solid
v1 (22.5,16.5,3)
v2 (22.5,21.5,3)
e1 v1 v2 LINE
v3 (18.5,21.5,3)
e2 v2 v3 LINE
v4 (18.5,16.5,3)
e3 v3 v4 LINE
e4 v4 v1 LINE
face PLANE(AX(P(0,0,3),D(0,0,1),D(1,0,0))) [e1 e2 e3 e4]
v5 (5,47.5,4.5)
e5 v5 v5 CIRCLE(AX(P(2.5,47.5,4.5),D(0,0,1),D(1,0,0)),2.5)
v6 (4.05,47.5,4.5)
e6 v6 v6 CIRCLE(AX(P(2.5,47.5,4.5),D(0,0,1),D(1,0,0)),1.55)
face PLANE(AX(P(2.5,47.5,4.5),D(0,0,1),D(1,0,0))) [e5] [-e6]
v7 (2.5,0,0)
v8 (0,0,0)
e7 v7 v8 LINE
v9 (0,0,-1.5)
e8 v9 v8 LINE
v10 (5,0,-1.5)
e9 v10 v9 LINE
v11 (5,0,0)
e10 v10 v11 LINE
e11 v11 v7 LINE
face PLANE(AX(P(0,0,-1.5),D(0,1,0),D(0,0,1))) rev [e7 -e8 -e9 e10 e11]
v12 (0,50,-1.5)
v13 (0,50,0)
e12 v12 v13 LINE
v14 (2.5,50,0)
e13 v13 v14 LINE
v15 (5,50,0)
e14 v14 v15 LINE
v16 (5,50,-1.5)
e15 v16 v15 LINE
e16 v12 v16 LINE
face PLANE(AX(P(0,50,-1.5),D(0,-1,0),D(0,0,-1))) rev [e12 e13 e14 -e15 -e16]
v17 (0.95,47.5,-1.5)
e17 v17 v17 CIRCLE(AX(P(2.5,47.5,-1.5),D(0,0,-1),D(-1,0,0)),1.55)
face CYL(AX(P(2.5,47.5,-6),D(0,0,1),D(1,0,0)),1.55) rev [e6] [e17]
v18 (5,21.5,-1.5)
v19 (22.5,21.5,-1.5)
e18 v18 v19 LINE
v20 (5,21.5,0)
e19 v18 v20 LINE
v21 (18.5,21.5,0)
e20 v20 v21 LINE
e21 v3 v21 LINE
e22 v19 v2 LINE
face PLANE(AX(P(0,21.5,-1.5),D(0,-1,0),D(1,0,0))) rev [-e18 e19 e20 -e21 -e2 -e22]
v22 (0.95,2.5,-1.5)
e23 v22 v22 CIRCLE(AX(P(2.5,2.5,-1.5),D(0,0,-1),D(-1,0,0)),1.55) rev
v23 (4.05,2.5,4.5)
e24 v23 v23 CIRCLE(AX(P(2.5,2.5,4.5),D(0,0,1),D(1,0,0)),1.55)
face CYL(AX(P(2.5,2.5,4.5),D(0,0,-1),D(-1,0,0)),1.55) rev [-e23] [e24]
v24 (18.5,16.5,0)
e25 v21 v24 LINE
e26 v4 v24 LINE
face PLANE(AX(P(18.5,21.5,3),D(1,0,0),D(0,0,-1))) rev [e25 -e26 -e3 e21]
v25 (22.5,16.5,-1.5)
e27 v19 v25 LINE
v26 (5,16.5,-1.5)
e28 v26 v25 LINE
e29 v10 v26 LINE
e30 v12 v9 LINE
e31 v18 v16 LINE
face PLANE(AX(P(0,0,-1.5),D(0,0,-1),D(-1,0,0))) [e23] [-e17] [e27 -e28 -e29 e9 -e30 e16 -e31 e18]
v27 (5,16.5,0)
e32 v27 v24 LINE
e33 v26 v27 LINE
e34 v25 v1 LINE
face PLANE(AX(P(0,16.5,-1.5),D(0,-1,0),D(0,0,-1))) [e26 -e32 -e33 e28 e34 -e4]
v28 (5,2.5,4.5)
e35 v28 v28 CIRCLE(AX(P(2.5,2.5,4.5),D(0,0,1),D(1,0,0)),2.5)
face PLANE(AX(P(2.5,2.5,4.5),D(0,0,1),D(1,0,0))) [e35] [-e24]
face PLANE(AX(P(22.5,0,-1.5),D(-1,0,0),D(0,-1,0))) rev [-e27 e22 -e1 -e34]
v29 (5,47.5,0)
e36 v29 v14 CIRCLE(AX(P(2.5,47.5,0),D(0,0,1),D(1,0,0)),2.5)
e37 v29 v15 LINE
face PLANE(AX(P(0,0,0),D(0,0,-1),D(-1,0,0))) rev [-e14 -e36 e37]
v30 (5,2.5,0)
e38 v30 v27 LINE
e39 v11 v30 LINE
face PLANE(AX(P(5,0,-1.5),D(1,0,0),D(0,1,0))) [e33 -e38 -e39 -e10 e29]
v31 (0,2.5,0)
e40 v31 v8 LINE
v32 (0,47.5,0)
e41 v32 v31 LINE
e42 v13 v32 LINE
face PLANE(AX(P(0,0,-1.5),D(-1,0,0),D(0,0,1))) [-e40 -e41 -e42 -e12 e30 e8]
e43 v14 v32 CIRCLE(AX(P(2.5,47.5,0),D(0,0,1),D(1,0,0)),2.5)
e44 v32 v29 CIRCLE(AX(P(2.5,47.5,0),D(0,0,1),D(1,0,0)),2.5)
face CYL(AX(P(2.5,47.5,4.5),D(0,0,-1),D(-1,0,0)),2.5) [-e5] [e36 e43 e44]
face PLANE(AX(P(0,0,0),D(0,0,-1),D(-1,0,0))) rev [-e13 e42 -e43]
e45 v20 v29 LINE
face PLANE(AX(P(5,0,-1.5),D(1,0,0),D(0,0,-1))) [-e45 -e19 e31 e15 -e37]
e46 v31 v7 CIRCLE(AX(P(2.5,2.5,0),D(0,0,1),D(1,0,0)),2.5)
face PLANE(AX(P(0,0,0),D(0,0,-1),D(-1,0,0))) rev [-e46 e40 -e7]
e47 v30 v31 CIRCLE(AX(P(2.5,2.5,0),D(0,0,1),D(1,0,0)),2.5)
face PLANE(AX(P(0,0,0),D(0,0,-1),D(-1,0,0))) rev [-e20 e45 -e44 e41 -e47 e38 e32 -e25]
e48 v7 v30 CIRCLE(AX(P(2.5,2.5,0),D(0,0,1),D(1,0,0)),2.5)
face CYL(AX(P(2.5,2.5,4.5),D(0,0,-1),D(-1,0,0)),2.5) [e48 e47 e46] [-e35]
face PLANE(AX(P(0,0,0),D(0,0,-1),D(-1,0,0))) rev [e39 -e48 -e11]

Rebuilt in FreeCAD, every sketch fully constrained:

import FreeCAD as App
import Part
import Sketcher

V = App.Vector
Q = App.Units.Quantity

doc = App.newDocument("Part")
params = doc.addObject("Spreadsheet::Sheet", "Params")
for row, (alias, value) in enumerate([
    ("sketch1_diameter", "5 mm"),
    ("sketch1_diameter2", "3.1 mm"),
    ("pad1_length", "4.5 mm"),
    ("sketch2_diameter", "3.1 mm"),
    ("sketch2_width", "5 mm"),
    ("sketch2_height", "50 mm"),
    ("sketch2_width2", "17.5 mm"),
    ("sketch2_height2", "28.5 mm"),
    ("pad2_length", "1.5 mm"),
    ("sketch3_width", "4 mm"),
    ("sketch3_height", "5 mm"),
    ("pad3_length", "3 mm"),
    ("sketch4_diameter", "5 mm"),
    ("pad4_length", "4.5 mm"),
    ("sketch5_diameter", "3.1 mm"),
    ("pocket1_length", "10.5 mm"),
], start=1):
    params.set(f"A{row}", alias)
    params.set(f"B{row}", "=" + value)
    params.setAlias(f"B{row}", alias)

body = doc.addObject("PartDesign::Body", "Body")

sketch1 = doc.addObject("Sketcher::SketchObject", "Sketch")
body.addObject(sketch1)
sketch1.AttachmentSupport = (doc.XY_Plane, [""])
sketch1.MapMode = "FlatFace"
sketch1.addGeometry([
    Part.Circle(V(2.5, 2.5, 0), V(0, 0, 1), 2.5),
    Part.Circle(V(2.5, 2.5, 0), V(0, 0, 1), 1.55),
], False)
sketch1.addConstraint([
    Sketcher.Constraint("Coincident", 1, 3, 0, 3),
    Sketcher.Constraint("Diameter", 0, Q("5 mm")),
    Sketcher.Constraint("Diameter", 1, Q("3.1 mm")),
    Sketcher.Constraint("DistanceX", -1, 1, 0, 3, Q("2.5 mm")),
    Sketcher.Constraint("DistanceY", -1, 1, 0, 3, Q("2.5 mm")),
])
sketch1.setExpression("Constraints[1]", "Params.sketch1_diameter")
sketch1.setExpression("Constraints[2]", "Params.sketch1_diameter2")
pad1 = doc.addObject("PartDesign::Pad", "Pad")
body.addObject(pad1)
pad1.Profile = sketch1
pad1.setExpression("Length", "Params.pad1_length")

sketch2 = doc.addObject("Sketcher::SketchObject", "Sketch001")
body.addObject(sketch2)
sketch2.AttachmentSupport = (doc.XY_Plane, [""])
sketch2.MapMode = "FlatFace"
sketch2.AttachmentOffset = App.Placement(V(0, 0, -1.5), App.Rotation())
sketch2.addGeometry([
    Part.LineSegment(V(5, 0, 0), V(0, 0, 0)),
    Part.LineSegment(V(0, 0, 0), V(0, 50, 0)),
    Part.LineSegment(V(0, 50, 0), V(5, 50, 0)),
    Part.LineSegment(V(5, 50, 0), V(5, 21.5, 0)),
    Part.LineSegment(V(5, 21.5, 0), V(22.5, 21.5, 0)),
    Part.LineSegment(V(22.5, 21.5, 0), V(22.5, 16.5, 0)),
    Part.LineSegment(V(22.5, 16.5, 0), V(5, 16.5, 0)),
    Part.LineSegment(V(5, 16.5, 0), V(5, 0, 0)),
    Part.Circle(V(2.5, 2.5, 0), V(0, 0, 1), 1.55),
], False)
sketch2.addConstraint([
    Sketcher.Constraint("Coincident", 0, 2, 1, 1),
    Sketcher.Constraint("Coincident", 1, 2, 2, 1),
    Sketcher.Constraint("Coincident", 2, 2, 3, 1),
    Sketcher.Constraint("Coincident", 3, 2, 4, 1),
    Sketcher.Constraint("Coincident", 4, 2, 5, 1),
    Sketcher.Constraint("Coincident", 5, 2, 6, 1),
    Sketcher.Constraint("Coincident", 6, 2, 7, 1),
    Sketcher.Constraint("Coincident", 7, 2, 0, 1),
    Sketcher.Constraint("Horizontal", 0),
    Sketcher.Constraint("Vertical", 1),
    Sketcher.Constraint("Horizontal", 2),
    Sketcher.Constraint("Vertical", 3),
    Sketcher.Constraint("Horizontal", 4),
    Sketcher.Constraint("Vertical", 5),
    Sketcher.Constraint("Horizontal", 6),
    Sketcher.Constraint("Vertical", 7),
    Sketcher.Constraint("Coincident", 0, 2, -1, 1),
    Sketcher.Constraint("Vertical", 3, 2, 6, 2),
    Sketcher.Constraint("Equal", 2, 5),
    Sketcher.Constraint("Diameter", 8, Q("3.1 mm")),
    Sketcher.Constraint("DistanceX", 0, 2, 0, 1, Q("5 mm")),
    Sketcher.Constraint("DistanceY", 1, 1, 1, 2, Q("50 mm")),
    Sketcher.Constraint("DistanceX", 4, 1, 4, 2, Q("17.5 mm")),
    Sketcher.Constraint("DistanceY", 3, 2, 3, 1, Q("28.5 mm")),
    Sketcher.Constraint("DistanceY", 8, 3, 3, 2, Q("19 mm")),
    Sketcher.Constraint("DistanceX", 8, 3, 4, 2, Q("20 mm")),
])
sketch2.setExpression("Constraints[19]", "Params.sketch2_diameter")
sketch2.setExpression("Constraints[20]", "Params.sketch2_width")
sketch2.setExpression("Constraints[21]", "Params.sketch2_height")
sketch2.setExpression("Constraints[22]", "Params.sketch2_width2")
sketch2.setExpression("Constraints[23]", "Params.sketch2_height2")
pad2 = doc.addObject("PartDesign::Pad", "Pad001")
body.addObject(pad2)
pad2.Profile = sketch2
pad2.setExpression("Length", "Params.pad2_length")

sketch3 = doc.addObject("Sketcher::SketchObject", "Sketch002")
body.addObject(sketch3)
sketch3.AttachmentSupport = (doc.XY_Plane, [""])
sketch3.MapMode = "FlatFace"
sketch3.addGeometry([
    Part.LineSegment(V(18.5, 21.5, 0), V(18.5, 16.5, 0)),
    Part.LineSegment(V(18.5, 16.5, 0), V(22.5, 16.5, 0)),
    Part.LineSegment(V(22.5, 16.5, 0), V(22.5, 21.5, 0)),
    Part.LineSegment(V(22.5, 21.5, 0), V(18.5, 21.5, 0)),
], False)
sketch3.addConstraint([
    Sketcher.Constraint("Coincident", 0, 2, 1, 1),
    Sketcher.Constraint("Coincident", 1, 2, 2, 1),
    Sketcher.Constraint("Coincident", 2, 2, 3, 1),
    Sketcher.Constraint("Coincident", 3, 2, 0, 1),
    Sketcher.Constraint("Vertical", 0),
    Sketcher.Constraint("Horizontal", 1),
    Sketcher.Constraint("Vertical", 2),
    Sketcher.Constraint("Horizontal", 3),
    Sketcher.Constraint("DistanceX", 1, 1, 1, 2, Q("4 mm")),
    Sketcher.Constraint("DistanceY", 0, 2, 0, 1, Q("5 mm")),
    Sketcher.Constraint("DistanceX", -1, 1, 0, 2, Q("18.5 mm")),
    Sketcher.Constraint("DistanceY", -1, 1, 0, 2, Q("16.5 mm")),
])
sketch3.setExpression("Constraints[8]", "Params.sketch3_width")
sketch3.setExpression("Constraints[9]", "Params.sketch3_height")
pad3 = doc.addObject("PartDesign::Pad", "Pad002")
body.addObject(pad3)
pad3.Profile = sketch3
pad3.setExpression("Length", "Params.pad3_length")

sketch4 = doc.addObject("Sketcher::SketchObject", "Sketch003")
body.addObject(sketch4)
sketch4.AttachmentSupport = (doc.XY_Plane, [""])
sketch4.MapMode = "FlatFace"
sketch4.addGeometry(Part.Circle(V(2.5, 47.5, 0), V(0, 0, 1), 2.5), False)
sketch4.addConstraint([
    Sketcher.Constraint("Diameter", 0, Q("5 mm")),
    Sketcher.Constraint("DistanceX", -1, 1, 0, 3, Q("2.5 mm")),
    Sketcher.Constraint("DistanceY", -1, 1, 0, 3, Q("47.5 mm")),
])
sketch4.setExpression("Constraints[0]", "Params.sketch4_diameter")
pad4 = doc.addObject("PartDesign::Pad", "Pad003")
body.addObject(pad4)
pad4.Profile = sketch4
pad4.setExpression("Length", "Params.pad4_length")

sketch5 = doc.addObject("Sketcher::SketchObject", "Sketch004")
body.addObject(sketch5)
sketch5.AttachmentSupport = (doc.XY_Plane, [""])
sketch5.MapMode = "FlatFace"
sketch5.AttachmentOffset = App.Placement(V(0, 0, 4.5), App.Rotation())
sketch5.addGeometry(Part.Circle(V(2.5, 47.5, 0), V(0, 0, 1), 1.55), False)
sketch5.addConstraint([
    Sketcher.Constraint("Diameter", 0, Q("3.1 mm")),
    Sketcher.Constraint("DistanceX", -1, 1, 0, 3, Q("2.5 mm")),
    Sketcher.Constraint("DistanceY", -1, 1, 0, 3, Q("47.5 mm")),
])
sketch5.setExpression("Constraints[0]", "Params.sketch5_diameter")
pocket1 = doc.addObject("PartDesign::Pocket", "Pocket")
body.addObject(pocket1)
pocket1.Profile = sketch5
pocket1.setExpression("Length", "Params.pocket1_length")

doc.recompute()
